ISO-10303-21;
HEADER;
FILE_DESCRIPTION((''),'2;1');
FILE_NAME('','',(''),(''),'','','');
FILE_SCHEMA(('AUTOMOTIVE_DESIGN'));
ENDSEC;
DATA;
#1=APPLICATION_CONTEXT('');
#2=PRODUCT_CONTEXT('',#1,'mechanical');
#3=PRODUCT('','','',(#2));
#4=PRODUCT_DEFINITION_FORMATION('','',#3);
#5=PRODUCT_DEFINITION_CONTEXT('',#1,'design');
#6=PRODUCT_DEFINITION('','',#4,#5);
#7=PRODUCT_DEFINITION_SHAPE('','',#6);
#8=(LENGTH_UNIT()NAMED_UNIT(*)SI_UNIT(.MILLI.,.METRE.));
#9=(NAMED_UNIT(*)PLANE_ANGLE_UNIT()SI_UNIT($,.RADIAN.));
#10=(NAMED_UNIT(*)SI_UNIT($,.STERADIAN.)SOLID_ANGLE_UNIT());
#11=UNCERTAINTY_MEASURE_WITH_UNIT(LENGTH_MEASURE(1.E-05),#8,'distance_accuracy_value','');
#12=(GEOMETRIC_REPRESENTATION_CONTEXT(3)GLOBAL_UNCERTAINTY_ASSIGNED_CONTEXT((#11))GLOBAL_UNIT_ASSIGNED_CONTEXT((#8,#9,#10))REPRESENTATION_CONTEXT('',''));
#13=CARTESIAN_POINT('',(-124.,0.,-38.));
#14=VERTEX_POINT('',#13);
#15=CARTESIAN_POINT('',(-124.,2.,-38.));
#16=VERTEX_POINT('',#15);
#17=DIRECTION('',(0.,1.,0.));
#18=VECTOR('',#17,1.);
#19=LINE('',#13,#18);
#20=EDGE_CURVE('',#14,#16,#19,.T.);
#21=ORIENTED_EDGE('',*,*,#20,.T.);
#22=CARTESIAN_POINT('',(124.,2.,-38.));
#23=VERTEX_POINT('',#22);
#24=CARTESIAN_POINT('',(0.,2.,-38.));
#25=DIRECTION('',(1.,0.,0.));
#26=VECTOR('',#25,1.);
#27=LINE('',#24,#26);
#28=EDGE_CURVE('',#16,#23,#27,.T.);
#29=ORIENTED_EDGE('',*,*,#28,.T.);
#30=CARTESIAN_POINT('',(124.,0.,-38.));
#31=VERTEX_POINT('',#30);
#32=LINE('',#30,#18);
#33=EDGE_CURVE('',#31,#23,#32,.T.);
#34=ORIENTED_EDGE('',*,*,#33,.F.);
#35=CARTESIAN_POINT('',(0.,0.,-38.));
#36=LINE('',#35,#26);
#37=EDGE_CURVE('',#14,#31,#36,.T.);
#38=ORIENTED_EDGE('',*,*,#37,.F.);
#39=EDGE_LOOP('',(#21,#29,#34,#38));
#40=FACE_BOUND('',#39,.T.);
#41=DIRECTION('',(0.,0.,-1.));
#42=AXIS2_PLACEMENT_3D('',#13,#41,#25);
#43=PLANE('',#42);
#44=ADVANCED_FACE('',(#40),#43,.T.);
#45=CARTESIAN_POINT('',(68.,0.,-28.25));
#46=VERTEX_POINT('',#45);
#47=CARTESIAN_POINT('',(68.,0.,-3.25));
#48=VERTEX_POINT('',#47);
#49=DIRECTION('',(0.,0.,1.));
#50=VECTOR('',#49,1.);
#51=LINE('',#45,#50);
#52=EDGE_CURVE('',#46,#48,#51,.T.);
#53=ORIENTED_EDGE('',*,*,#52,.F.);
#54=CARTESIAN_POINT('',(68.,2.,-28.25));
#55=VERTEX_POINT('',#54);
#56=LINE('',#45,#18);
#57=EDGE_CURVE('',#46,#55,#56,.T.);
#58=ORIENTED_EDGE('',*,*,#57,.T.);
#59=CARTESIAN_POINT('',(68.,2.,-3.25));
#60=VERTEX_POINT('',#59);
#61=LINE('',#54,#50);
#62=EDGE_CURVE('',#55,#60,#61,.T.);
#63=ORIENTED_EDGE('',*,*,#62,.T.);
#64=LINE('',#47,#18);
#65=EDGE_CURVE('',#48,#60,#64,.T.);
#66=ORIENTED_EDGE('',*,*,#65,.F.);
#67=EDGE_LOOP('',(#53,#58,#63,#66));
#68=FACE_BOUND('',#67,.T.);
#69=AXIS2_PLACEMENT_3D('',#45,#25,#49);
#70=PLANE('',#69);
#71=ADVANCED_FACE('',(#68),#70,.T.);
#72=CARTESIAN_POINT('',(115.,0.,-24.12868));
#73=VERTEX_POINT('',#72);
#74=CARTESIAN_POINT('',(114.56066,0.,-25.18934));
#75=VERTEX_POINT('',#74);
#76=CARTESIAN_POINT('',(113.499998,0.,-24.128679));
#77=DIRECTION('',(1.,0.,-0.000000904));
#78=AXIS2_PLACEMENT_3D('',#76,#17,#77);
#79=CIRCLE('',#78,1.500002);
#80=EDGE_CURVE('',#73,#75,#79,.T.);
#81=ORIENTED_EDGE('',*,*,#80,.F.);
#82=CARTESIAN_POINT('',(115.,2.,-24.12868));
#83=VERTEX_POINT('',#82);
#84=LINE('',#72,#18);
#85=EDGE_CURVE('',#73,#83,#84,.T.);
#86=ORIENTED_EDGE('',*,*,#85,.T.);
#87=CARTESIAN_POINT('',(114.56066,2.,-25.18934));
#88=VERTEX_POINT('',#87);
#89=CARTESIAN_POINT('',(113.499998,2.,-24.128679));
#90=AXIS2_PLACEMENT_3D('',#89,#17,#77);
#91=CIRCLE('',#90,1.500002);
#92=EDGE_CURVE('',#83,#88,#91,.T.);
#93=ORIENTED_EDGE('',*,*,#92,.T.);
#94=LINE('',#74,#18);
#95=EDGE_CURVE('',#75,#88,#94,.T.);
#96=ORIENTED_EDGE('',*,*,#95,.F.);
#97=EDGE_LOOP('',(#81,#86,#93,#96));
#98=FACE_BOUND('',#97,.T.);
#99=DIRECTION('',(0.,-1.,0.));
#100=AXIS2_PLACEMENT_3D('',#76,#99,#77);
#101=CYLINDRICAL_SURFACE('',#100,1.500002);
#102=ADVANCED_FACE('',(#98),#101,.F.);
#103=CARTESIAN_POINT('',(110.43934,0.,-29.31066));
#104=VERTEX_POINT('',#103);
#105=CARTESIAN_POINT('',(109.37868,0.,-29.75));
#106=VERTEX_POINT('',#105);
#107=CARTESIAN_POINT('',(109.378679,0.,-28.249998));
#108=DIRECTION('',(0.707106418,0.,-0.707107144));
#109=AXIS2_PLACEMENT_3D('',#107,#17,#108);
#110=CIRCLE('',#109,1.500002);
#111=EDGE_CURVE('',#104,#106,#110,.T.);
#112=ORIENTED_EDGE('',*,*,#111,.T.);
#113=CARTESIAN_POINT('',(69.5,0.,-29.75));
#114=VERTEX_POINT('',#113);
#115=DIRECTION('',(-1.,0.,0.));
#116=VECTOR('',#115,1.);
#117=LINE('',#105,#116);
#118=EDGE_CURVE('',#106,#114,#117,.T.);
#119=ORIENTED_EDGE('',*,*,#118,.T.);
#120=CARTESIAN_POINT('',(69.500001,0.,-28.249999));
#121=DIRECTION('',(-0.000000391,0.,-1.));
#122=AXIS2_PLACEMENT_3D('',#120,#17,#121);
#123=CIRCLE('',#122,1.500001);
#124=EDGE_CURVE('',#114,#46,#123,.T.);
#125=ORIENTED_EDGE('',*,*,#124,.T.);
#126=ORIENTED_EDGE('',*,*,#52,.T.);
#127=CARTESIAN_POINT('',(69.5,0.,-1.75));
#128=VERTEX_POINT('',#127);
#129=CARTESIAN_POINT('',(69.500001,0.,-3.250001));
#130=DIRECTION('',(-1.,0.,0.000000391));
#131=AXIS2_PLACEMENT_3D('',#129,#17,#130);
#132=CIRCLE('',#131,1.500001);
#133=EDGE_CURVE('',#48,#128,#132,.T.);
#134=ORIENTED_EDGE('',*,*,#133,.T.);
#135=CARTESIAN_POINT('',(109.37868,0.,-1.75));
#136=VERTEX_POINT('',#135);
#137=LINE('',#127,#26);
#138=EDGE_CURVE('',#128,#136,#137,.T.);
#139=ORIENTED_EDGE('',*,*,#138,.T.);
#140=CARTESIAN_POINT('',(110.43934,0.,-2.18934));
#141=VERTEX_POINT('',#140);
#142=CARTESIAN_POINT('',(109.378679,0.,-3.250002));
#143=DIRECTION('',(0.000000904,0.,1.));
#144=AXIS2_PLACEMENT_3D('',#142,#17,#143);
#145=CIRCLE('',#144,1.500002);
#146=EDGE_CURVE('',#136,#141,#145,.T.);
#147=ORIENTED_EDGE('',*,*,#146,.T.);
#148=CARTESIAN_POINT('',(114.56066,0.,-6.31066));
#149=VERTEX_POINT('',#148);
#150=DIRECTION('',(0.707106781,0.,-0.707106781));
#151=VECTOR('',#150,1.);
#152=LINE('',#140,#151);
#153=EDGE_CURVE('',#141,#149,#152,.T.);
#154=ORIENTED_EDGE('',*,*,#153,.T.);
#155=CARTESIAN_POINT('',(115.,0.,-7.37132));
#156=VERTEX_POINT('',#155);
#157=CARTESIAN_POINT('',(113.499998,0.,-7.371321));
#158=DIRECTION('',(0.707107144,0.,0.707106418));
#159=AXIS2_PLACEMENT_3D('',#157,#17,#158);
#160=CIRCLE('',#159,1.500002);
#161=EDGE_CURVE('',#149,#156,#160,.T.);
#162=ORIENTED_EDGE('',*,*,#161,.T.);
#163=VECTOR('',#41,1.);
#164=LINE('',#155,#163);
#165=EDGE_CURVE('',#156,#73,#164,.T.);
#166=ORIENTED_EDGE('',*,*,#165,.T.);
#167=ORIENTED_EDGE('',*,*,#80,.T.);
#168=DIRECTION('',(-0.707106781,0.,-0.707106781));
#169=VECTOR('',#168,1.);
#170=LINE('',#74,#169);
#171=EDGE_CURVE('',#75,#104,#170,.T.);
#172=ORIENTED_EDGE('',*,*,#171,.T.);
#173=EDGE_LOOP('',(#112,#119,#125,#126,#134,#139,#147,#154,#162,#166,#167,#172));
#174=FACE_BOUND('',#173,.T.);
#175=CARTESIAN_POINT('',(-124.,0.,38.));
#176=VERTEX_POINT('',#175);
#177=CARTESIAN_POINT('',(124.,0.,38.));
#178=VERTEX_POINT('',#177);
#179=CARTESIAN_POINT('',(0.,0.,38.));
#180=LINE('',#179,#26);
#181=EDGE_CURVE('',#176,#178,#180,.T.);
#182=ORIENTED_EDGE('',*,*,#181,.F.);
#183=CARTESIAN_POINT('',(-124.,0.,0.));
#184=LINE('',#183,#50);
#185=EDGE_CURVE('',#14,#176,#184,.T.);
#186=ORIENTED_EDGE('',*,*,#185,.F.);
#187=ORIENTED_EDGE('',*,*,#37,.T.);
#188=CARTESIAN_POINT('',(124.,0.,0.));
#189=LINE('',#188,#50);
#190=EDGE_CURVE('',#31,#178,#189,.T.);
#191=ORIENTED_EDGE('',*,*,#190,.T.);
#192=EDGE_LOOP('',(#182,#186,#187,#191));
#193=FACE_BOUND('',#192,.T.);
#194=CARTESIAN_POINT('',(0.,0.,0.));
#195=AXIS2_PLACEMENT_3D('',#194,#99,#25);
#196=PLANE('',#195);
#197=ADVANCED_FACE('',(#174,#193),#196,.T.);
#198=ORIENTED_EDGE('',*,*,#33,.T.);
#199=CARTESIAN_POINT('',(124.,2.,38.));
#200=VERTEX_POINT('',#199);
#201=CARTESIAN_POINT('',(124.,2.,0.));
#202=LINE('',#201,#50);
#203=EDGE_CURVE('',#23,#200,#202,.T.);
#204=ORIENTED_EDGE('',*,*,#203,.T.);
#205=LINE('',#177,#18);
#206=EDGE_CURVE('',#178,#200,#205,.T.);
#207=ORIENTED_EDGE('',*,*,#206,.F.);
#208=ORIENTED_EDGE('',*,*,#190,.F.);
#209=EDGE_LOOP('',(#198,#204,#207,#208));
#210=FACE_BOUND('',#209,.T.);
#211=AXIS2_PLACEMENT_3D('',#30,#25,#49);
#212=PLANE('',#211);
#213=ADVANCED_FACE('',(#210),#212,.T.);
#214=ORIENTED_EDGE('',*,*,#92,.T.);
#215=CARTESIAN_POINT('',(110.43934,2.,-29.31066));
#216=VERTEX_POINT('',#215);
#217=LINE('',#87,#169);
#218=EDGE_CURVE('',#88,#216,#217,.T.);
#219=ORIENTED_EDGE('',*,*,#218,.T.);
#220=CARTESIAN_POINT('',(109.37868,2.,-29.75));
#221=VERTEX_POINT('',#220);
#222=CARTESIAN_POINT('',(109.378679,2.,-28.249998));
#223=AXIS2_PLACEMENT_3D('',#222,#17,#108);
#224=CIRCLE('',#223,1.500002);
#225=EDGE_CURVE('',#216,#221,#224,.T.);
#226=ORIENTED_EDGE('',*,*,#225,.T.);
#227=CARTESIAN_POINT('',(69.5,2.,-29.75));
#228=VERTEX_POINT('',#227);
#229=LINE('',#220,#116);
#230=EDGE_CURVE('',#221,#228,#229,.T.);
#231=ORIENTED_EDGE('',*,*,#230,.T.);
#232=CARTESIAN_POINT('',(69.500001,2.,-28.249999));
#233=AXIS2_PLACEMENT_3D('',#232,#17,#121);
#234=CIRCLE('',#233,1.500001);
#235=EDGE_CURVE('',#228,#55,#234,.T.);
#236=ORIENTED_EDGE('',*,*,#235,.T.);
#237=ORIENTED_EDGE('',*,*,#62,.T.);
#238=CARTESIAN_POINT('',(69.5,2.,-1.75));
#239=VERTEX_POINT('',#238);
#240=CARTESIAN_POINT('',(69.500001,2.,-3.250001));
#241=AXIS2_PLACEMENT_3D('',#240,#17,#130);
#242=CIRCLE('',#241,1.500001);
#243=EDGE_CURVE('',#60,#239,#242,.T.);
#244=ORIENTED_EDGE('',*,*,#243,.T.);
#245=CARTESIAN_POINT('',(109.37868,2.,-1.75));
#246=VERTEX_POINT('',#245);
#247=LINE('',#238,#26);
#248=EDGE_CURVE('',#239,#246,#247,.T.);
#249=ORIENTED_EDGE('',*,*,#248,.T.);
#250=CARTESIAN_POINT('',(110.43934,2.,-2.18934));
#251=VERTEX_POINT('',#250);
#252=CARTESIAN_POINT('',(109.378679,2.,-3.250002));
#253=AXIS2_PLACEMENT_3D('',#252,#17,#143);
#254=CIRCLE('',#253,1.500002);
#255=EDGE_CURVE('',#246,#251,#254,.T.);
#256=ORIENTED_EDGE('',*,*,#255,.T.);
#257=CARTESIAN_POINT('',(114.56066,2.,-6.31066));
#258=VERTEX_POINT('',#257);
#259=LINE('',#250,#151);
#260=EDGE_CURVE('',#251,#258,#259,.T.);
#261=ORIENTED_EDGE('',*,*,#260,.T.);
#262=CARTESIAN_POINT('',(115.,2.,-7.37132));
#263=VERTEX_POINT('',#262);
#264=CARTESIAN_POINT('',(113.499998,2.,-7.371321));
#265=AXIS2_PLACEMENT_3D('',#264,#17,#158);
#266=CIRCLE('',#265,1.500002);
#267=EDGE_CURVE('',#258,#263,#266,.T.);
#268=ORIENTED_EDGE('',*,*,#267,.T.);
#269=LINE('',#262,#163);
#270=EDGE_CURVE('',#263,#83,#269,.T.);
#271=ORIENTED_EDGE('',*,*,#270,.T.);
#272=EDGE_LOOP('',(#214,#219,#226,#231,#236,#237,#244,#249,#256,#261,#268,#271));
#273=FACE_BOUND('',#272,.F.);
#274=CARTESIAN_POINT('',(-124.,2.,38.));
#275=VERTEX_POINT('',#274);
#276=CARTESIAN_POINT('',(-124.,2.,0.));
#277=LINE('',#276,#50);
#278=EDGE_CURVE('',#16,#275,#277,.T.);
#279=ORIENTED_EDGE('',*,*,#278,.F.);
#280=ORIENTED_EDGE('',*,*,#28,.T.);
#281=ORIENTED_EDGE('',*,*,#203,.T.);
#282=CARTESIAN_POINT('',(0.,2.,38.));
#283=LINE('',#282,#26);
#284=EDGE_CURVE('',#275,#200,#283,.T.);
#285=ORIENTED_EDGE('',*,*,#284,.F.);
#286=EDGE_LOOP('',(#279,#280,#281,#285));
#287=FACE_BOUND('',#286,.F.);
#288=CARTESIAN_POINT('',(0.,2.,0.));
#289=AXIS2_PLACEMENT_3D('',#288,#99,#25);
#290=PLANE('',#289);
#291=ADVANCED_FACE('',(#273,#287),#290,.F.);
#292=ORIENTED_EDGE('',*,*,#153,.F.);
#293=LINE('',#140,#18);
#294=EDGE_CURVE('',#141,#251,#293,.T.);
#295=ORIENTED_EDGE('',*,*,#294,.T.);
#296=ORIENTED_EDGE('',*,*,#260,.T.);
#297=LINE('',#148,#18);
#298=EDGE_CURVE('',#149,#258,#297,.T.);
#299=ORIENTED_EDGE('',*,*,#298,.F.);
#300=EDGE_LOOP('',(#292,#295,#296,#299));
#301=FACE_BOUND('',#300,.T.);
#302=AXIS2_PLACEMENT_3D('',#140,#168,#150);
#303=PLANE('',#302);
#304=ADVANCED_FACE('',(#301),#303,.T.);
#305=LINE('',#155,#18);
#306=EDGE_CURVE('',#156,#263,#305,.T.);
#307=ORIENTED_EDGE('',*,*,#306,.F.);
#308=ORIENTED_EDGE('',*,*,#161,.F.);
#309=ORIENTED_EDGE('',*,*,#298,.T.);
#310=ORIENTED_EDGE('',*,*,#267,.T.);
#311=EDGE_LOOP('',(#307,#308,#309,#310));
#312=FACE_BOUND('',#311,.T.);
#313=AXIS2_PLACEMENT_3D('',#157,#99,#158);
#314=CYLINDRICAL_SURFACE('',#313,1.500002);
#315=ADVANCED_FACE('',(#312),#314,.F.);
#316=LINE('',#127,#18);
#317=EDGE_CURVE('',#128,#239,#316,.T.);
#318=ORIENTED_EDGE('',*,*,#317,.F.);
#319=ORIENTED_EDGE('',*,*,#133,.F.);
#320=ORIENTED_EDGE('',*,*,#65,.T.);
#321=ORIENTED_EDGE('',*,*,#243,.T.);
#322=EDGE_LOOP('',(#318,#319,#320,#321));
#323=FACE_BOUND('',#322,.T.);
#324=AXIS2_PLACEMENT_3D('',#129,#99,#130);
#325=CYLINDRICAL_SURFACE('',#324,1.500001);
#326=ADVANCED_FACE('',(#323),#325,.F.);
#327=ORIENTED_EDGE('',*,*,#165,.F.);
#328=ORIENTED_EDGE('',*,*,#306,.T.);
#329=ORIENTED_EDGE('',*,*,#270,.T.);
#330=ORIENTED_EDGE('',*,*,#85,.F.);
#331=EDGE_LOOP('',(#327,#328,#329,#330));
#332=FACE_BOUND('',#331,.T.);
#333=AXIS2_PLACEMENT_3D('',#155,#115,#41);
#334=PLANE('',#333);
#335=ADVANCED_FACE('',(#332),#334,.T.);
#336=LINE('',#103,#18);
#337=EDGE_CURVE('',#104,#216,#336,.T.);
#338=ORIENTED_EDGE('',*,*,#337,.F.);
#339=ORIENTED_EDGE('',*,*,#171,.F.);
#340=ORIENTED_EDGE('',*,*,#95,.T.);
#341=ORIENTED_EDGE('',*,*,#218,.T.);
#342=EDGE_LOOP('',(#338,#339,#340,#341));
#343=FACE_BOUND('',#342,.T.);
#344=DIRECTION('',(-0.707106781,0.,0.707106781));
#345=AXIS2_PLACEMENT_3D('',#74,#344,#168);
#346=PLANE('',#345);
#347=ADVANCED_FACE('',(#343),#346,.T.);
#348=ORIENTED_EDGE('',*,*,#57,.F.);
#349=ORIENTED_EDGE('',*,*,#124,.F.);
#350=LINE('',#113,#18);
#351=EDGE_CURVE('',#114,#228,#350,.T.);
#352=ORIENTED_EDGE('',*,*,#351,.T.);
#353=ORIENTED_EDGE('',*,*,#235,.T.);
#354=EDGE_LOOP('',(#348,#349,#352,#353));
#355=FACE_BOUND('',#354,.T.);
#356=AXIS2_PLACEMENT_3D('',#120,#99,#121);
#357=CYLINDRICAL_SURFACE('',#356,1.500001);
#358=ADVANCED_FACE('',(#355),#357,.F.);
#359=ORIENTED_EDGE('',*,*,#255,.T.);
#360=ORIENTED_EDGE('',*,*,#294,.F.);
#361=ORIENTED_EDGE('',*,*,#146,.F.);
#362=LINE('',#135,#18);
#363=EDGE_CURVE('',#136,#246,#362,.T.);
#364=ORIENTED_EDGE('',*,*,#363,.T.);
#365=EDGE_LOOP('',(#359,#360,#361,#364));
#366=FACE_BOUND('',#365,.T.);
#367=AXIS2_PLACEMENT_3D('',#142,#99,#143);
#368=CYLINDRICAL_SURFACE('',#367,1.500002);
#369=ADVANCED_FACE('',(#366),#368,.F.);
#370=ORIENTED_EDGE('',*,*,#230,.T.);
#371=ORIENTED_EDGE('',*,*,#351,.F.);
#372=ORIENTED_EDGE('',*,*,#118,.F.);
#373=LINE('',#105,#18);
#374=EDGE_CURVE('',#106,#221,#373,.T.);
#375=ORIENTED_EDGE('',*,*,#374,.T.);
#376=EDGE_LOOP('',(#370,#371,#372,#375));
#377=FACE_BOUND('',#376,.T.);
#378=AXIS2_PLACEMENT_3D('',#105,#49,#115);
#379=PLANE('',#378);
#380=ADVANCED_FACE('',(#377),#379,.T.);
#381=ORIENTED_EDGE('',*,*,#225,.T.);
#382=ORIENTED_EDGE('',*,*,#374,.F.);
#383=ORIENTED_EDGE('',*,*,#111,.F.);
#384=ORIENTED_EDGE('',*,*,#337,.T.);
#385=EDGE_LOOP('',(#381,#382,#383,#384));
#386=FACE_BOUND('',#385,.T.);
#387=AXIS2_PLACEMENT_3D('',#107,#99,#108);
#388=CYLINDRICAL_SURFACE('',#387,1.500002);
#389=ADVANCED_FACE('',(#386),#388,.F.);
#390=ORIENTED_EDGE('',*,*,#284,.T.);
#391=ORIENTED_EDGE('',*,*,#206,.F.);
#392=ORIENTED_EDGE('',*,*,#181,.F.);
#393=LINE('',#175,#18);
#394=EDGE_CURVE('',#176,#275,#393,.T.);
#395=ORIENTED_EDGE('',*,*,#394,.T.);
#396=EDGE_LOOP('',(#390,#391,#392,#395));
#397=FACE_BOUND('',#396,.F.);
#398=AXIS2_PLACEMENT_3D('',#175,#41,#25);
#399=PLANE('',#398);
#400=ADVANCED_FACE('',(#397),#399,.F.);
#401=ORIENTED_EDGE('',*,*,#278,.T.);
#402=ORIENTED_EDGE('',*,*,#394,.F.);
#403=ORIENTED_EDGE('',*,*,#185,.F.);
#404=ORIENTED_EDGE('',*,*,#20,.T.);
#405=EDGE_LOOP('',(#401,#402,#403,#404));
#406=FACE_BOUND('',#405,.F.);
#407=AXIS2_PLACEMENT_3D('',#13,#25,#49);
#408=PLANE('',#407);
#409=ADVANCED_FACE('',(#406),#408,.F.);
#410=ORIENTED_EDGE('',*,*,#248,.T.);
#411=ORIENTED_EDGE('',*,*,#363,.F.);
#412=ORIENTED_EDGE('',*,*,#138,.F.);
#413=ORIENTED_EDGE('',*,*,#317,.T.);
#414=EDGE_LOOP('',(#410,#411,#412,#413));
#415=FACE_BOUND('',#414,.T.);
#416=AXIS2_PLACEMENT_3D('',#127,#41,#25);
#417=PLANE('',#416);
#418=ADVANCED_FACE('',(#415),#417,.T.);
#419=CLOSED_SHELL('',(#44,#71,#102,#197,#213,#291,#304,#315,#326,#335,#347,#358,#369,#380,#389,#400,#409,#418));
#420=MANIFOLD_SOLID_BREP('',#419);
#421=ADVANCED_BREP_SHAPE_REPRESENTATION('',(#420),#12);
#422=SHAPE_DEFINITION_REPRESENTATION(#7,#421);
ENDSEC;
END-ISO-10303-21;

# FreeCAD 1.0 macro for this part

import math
import FreeCAD as App
import Part
import Sketcher

V = App.Vector

doc = App.newDocument("Part")
body = doc.addObject("PartDesign::Body", "Body")

# Sketch on XZ plane
sketch1 = doc.addObject("Sketcher::SketchObject", "Sketch")
body.addObject(sketch1)
sketch1.AttachmentSupport = (doc.XZ_Plane, [""])
sketch1.MapMode = "FlatFace"
sketch1.addGeometry([
    Part.LineSegment(V(-124, 38, 0), V(-124, -38, 0)),  # 0
    Part.LineSegment(V(-124, -38, 0), V(124, -38, 0)),  # 1
    Part.LineSegment(V(124, -38, 0), V(124, 38, 0)),  # 2
    Part.LineSegment(V(124, 38, 0), V(-124, 38, 0)),  # 3
    Part.LineSegment(V(68, -28.25, 0), V(68, -3.25, 0)),  # 4
    Part.ArcOfCircle(Part.Circle(V(69.500001, -3.250001, 0), V(0, 0, 1), 1.500001), math.radians(90.000022), math.radians(179.999978)),  # 5
    Part.LineSegment(V(69.5, -1.75, 0), V(109.37868, -1.75, 0)),  # 6
    Part.ArcOfCircle(Part.Circle(V(109.378679, -3.250002, 0), V(0, 0, 1), 1.500002), math.radians(45.000029), math.radians(89.999948)),  # 7
    Part.LineSegment(V(110.43934, -2.18934, 0), V(114.56066, -6.31066, 0)),  # 8
    Part.ArcOfCircle(Part.Circle(V(113.499998, -7.371321, 0), V(0, 0, 1), 1.500002), math.radians(0.000052), math.radians(44.999971)),  # 9
    Part.LineSegment(V(115, -7.37132, 0), V(115, -24.12868, 0)),  # 10
    Part.ArcOfCircle(Part.Circle(V(113.499998, -24.128679, 0), V(0, 0, 1), 1.500002), math.radians(-44.999971), math.radians(-0.000052)),  # 11
    Part.LineSegment(V(114.56066, -25.18934, 0), V(110.43934, -29.31066, 0)),  # 12
    Part.ArcOfCircle(Part.Circle(V(109.378679, -28.249998, 0), V(0, 0, 1), 1.500002), math.radians(-89.999948), math.radians(-45.000029)),  # 13
    Part.LineSegment(V(109.37868, -29.75, 0), V(69.5, -29.75, 0)),  # 14
    Part.ArcOfCircle(Part.Circle(V(69.500001, -28.249999, 0), V(0, 0, 1), 1.500001), math.radians(-179.999978), math.radians(-90.000022)),  # 15
], False)
sketch1.addConstraint([
    Sketcher.Constraint("Coincident", 0, 2, 1, 1),
    Sketcher.Constraint("Coincident", 1, 2, 2, 1),
    Sketcher.Constraint("Coincident", 2, 2, 3, 1),
    Sketcher.Constraint("Coincident", 3, 2, 0, 1),
    Sketcher.Constraint("Tangent", 4, 2, 5, 2),
    Sketcher.Constraint("Tangent", 5, 1, 6, 1),
    Sketcher.Constraint("Tangent", 6, 2, 7, 2),
    Sketcher.Constraint("Tangent", 7, 1, 8, 1),
    Sketcher.Constraint("Tangent", 8, 2, 9, 2),
    Sketcher.Constraint("Tangent", 9, 1, 10, 1),
    Sketcher.Constraint("Tangent", 10, 2, 11, 2),
    Sketcher.Constraint("Tangent", 11, 1, 12, 1),
    Sketcher.Constraint("Tangent", 12, 2, 13, 2),
    Sketcher.Constraint("Tangent", 13, 1, 14, 1),
    Sketcher.Constraint("Tangent", 14, 2, 15, 2),
    Sketcher.Constraint("Tangent", 15, 1, 4, 1),
    Sketcher.Constraint("Vertical", 0),
    Sketcher.Constraint("Horizontal", 1),
    Sketcher.Constraint("Vertical", 2),
    Sketcher.Constraint("Horizontal", 3),
    Sketcher.Constraint("Vertical", 4),
    Sketcher.Constraint("Horizontal", 6),
    Sketcher.Constraint("Vertical", 10),
    Sketcher.Constraint("Horizontal", 14),
    Sketcher.Constraint("Equal", 5, 7),
    Sketcher.Constraint("Equal", 7, 9),
    Sketcher.Constraint("Equal", 9, 11),
    Sketcher.Constraint("Equal", 11, 13),
    Sketcher.Constraint("Equal", 13, 15),
    Sketcher.Constraint("Symmetric", 0, 2, 2, 2, -1, 1),
    Sketcher.Constraint("Perpendicular", 8, 12),
    Sketcher.Constraint("Vertical", 7, 3, 13, 3),
    Sketcher.Constraint("Vertical", 8, 2, 11, 1),
    Sketcher.Constraint("Radius", 5, 1.500001),
    Sketcher.Constraint("DistanceX", 1, 1, 1, 2, 248.0),
    Sketcher.Constraint("DistanceY", 0, 2, 0, 1, 76.0),
    Sketcher.Constraint("DistanceY", 4, 1, 4, 2, 25.0),
    Sketcher.Constraint("DistanceX", -1, 1, 4, 2, 68.0),
    Sketcher.Constraint("DistanceX", -1, 1, 9, 1, 115.0),
    Sketcher.Constraint("DistanceY", 5, 3, -1, 1, 3.250001),
    Sketcher.Constraint("DistanceX", 6, 1, 6, 2, 39.87868),
])
pad1 = doc.addObject("PartDesign::Pad", "Pad")
body.addObject(pad1)
pad1.Profile = sketch1
pad1.Length = 2
pad1.Reversed = True

doc.recompute()
